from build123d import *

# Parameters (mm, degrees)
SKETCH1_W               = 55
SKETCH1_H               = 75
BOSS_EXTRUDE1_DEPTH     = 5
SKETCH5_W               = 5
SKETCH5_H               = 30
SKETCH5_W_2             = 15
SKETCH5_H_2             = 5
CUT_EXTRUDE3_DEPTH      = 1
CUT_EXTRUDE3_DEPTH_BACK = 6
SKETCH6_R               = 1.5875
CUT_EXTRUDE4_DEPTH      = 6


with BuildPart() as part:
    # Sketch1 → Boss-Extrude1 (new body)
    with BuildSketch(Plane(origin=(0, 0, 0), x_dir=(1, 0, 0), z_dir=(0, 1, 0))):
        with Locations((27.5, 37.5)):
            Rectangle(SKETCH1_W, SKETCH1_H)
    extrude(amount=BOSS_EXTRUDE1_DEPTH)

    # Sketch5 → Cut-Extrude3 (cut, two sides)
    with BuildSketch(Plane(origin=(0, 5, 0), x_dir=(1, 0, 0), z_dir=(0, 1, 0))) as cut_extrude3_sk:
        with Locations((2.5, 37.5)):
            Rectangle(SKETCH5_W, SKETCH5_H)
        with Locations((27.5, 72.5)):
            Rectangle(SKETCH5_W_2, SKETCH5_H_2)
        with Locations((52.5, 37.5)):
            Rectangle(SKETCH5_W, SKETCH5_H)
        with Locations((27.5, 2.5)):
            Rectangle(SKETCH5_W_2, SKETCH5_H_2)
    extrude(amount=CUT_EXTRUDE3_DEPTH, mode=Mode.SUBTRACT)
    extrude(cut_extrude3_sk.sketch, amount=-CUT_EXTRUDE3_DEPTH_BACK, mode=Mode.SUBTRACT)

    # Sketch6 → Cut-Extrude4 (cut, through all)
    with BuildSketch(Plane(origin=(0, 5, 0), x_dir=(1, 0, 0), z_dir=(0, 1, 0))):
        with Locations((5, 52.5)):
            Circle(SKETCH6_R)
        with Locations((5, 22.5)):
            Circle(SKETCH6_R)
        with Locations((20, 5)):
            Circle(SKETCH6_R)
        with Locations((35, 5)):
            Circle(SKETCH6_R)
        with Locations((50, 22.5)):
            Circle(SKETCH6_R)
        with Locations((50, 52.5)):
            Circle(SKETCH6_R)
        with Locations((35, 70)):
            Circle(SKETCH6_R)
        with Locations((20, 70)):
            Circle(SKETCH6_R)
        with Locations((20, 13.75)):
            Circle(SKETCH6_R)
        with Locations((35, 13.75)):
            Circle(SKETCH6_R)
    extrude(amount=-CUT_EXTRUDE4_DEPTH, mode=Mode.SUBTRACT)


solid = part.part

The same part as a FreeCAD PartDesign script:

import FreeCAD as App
import Part
import Sketcher
from FreeCAD import Vector

doc = App.newDocument("Part")
body = doc.addObject("PartDesign::Body", "Body")

# Sketch on XZ plane
sketch1 = doc.addObject("Sketcher::SketchObject", "Sketch")
body.addObject(sketch1)
sketch1.AttachmentSupport = (doc.XZ_Plane, [""])
sketch1.MapMode = "FlatFace"
sketch1.addGeometry([
    Part.LineSegment(Vector(0, -75, 0), Vector(0, 0, 0)),
    Part.LineSegment(Vector(0, 0, 0), Vector(55, 0, 0)),
    Part.LineSegment(Vector(55, 0, 0), Vector(55, -75, 0)),
    Part.LineSegment(Vector(55, -75, 0), Vector(0, -75, 0)),
], False)
sketch1.addConstraint([
    Sketcher.Constraint("Coincident", 0, 2, 1, 1),
    Sketcher.Constraint("Coincident", 1, 2, 2, 1),
    Sketcher.Constraint("Coincident", 2, 2, 3, 1),
    Sketcher.Constraint("Coincident", 3, 2, 0, 1),
    Sketcher.Constraint("Vertical", 0),
    Sketcher.Constraint("Horizontal", 1),
    Sketcher.Constraint("Vertical", 2),
    Sketcher.Constraint("Horizontal", 3),
    Sketcher.Constraint("Coincident", 0, 2, -1, 1),
    Sketcher.Constraint("DistanceX", 1, 1, 1, 2, 55.0),
    Sketcher.Constraint("DistanceY", 0, 1, 0, 2, 75.0),
])
pad1 = doc.addObject("PartDesign::Pad", "Pad")
body.addObject(pad1)
pad1.Profile = sketch1
pad1.Length = 5
pad1.Reversed = True

# Sketch on XZ plane
sketch2 = doc.addObject("Sketcher::SketchObject", "Sketch001")
body.addObject(sketch2)
sketch2.AttachmentSupport = (doc.XZ_Plane, [""])
sketch2.MapMode = "FlatFace"
sketch2.AttachmentOffset = App.Placement(Vector(0, 0, -5), App.Rotation())
sketch2.addGeometry([
    Part.LineSegment(Vector(0, -52.5, 0), Vector(0, -22.5, 0)),  # 0
    Part.LineSegment(Vector(0, -22.5, 0), Vector(5, -22.5, 0)),  # 1
    Part.LineSegment(Vector(5, -22.5, 0), Vector(5, -52.5, 0)),  # 2
    Part.LineSegment(Vector(5, -52.5, 0), Vector(0, -52.5, 0)),  # 3
    Part.LineSegment(Vector(20, -75, 0), Vector(20, -70, 0)),  # 4
    Part.LineSegment(Vector(20, -70, 0), Vector(35, -70, 0)),  # 5
    Part.LineSegment(Vector(35, -70, 0), Vector(35, -75, 0)),  # 6
    Part.LineSegment(Vector(35, -75, 0), Vector(20, -75, 0)),  # 7
    Part.LineSegment(Vector(50, -52.5, 0), Vector(50, -22.5, 0)),  # 8
    Part.LineSegment(Vector(50, -22.5, 0), Vector(55, -22.5, 0)),  # 9
    Part.LineSegment(Vector(55, -22.5, 0), Vector(55, -52.5, 0)),  # 10
    Part.LineSegment(Vector(55, -52.5, 0), Vector(50, -52.5, 0)),  # 11
    Part.LineSegment(Vector(20, -5, 0), Vector(20, 0, 0)),  # 12
    Part.LineSegment(Vector(20, 0, 0), Vector(35, 0, 0)),  # 13
    Part.LineSegment(Vector(35, 0, 0), Vector(35, -5, 0)),  # 14
    Part.LineSegment(Vector(35, -5, 0), Vector(20, -5, 0)),  # 15
], False)
sketch2.addConstraint([
    Sketcher.Constraint("Coincident", 0, 2, 1, 1),
    Sketcher.Constraint("Coincident", 1, 2, 2, 1),
    Sketcher.Constraint("Coincident", 2, 2, 3, 1),
    Sketcher.Constraint("Coincident", 3, 2, 0, 1),
    Sketcher.Constraint("Coincident", 4, 2, 5, 1),
    Sketcher.Constraint("Coincident", 5, 2, 6, 1),
    Sketcher.Constraint("Coincident", 6, 2, 7, 1),
    Sketcher.Constraint("Coincident", 7, 2, 4, 1),
    Sketcher.Constraint("Coincident", 8, 2, 9, 1),
    Sketcher.Constraint("Coincident", 9, 2, 10, 1),
    Sketcher.Constraint("Coincident", 10, 2, 11, 1),
    Sketcher.Constraint("Coincident", 11, 2, 8, 1),
    Sketcher.Constraint("Coincident", 12, 2, 13, 1),
    Sketcher.Constraint("Coincident", 13, 2, 14, 1),
    Sketcher.Constraint("Coincident", 14, 2, 15, 1),
    Sketcher.Constraint("Coincident", 15, 2, 12, 1),
    Sketcher.Constraint("Vertical", 0),
    Sketcher.Constraint("Horizontal", 1),
    Sketcher.Constraint("Vertical", 2),
    Sketcher.Constraint("Horizontal", 3),
    Sketcher.Constraint("Vertical", 4),
    Sketcher.Constraint("Horizontal", 5),
    Sketcher.Constraint("Vertical", 6),
    Sketcher.Constraint("Horizontal", 7),
    Sketcher.Constraint("Vertical", 8),
    Sketcher.Constraint("Horizontal", 9),
    Sketcher.Constraint("Vertical", 10),
    Sketcher.Constraint("Horizontal", 11),
    Sketcher.Constraint("Vertical", 12),
    Sketcher.Constraint("Horizontal", 13),
    Sketcher.Constraint("Vertical", 14),
    Sketcher.Constraint("Horizontal", 15),
    Sketcher.Constraint("PointOnObject", 0, 2, -2),
    Sketcher.Constraint("PointOnObject", 12, 2, -1),
    Sketcher.Constraint("Horizontal", 1, 2, 8, 2),
    Sketcher.Constraint("Horizontal", 3, 2, 10, 2),
    Sketcher.Constraint("Vertical", 7, 2, 12, 2),
    Sketcher.Constraint("Vertical", 6, 2, 13, 2),
    Sketcher.Constraint("Equal", 3, 9),
    Sketcher.Constraint("Equal", 11, 4),
    Sketcher.Constraint("Equal", 6, 12),
    Sketcher.Constraint("DistanceX", 1, 1, 1, 2, 5.0),
    Sketcher.Constraint("DistanceX", 5, 1, 5, 2, 15.0),
    Sketcher.Constraint("DistanceY", 0, 1, 0, 2, 30.0),
    Sketcher.Constraint("DistanceX", -1, 1, 4, 2, 20.0),
    Sketcher.Constraint("DistanceY", 4, 2, -1, 1, 70.0),
    Sketcher.Constraint("DistanceX", -1, 1, 8, 2, 50.0),
    Sketcher.Constraint("DistanceY", 0, 2, -1, 1, 22.5),
])
pocket1 = doc.addObject("PartDesign::Pocket", "Pocket")
body.addObject(pocket1)
pocket1.Profile = sketch2
pocket1.Type = "ThroughAll"
pocket1.Midplane = True

# Sketch on XZ plane
sketch3 = doc.addObject("Sketcher::SketchObject", "Sketch002")
body.addObject(sketch3)
sketch3.AttachmentSupport = (doc.XZ_Plane, [""])
sketch3.MapMode = "FlatFace"
sketch3.AttachmentOffset = App.Placement(Vector(0, 0, -5), App.Rotation())
sketch3.addGeometry([
    Part.Circle(Vector(5, -52.5, 0), Vector(0, 0, 1), 1.5875),  # 0
    Part.Circle(Vector(5, -22.5, 0), Vector(0, 0, 1), 1.5875),  # 1
    Part.Circle(Vector(20, -5, 0), Vector(0, 0, 1), 1.5875),  # 2
    Part.Circle(Vector(35, -5, 0), Vector(0, 0, 1), 1.5875),  # 3
    Part.Circle(Vector(50, -22.5, 0), Vector(0, 0, 1), 1.5875),  # 4
    Part.Circle(Vector(50, -52.5, 0), Vector(0, 0, 1), 1.5875),  # 5
    Part.Circle(Vector(35, -70, 0), Vector(0, 0, 1), 1.5875),  # 6
    Part.Circle(Vector(20, -70, 0), Vector(0, 0, 1), 1.5875),  # 7
    Part.Circle(Vector(20, -13.75, 0), Vector(0, 0, 1), 1.5875),  # 8
    Part.Circle(Vector(35, -13.75, 0), Vector(0, 0, 1), 1.5875),  # 9
], False)
sketch3.addConstraint([
    Sketcher.Constraint("Equal", 0, 1),
    Sketcher.Constraint("Equal", 1, 2),
    Sketcher.Constraint("Equal", 2, 3),
    Sketcher.Constraint("Equal", 3, 4),
    Sketcher.Constraint("Equal", 4, 5),
    Sketcher.Constraint("Equal", 5, 6),
    Sketcher.Constraint("Equal", 6, 7),
    Sketcher.Constraint("Equal", 7, 8),
    Sketcher.Constraint("Equal", 8, 9),
    Sketcher.Constraint("Horizontal", 2, 3, 3, 3),
    Sketcher.Constraint("Horizontal", 1, 3, 4, 3),
    Sketcher.Constraint("Horizontal", 0, 3, 5, 3),
    Sketcher.Constraint("Horizontal", 6, 3, 7, 3),
    Sketcher.Constraint("Horizontal", 8, 3, 9, 3),
    Sketcher.Constraint("Vertical", 0, 3, 1, 3),
    Sketcher.Constraint("Vertical", 4, 3, 5, 3),
    Sketcher.Constraint("Vertical", 3, 3, 6, 3),
    Sketcher.Constraint("Vertical", 2, 3, 7, 3),
    Sketcher.Constraint("Vertical", 7, 3, 8, 3),
    Sketcher.Constraint("Vertical", 6, 3, 9, 3),
    Sketcher.Constraint("Diameter", 0, 3.175),
    Sketcher.Constraint("DistanceX", -1, 1, 0, 3, 5.0),
    Sketcher.Constraint("DistanceX", -1, 1, 2, 3, 20.0),
    Sketcher.Constraint("DistanceY", 2, 3, -1, 1, 5.0),
    Sketcher.Constraint("DistanceX", -1, 1, 3, 3, 35.0),
    Sketcher.Constraint("DistanceX", -1, 1, 4, 3, 50.0),
    Sketcher.Constraint("DistanceY", 6, 3, -1, 1, 70.0),
    Sketcher.Constraint("DistanceY", 0, 3, 1, 3, 30.0),
    Sketcher.Constraint("DistanceY", 0, 3, -1, 1, 52.5),
    Sketcher.Constraint("DistanceY", 8, 3, -1, 1, 13.75),
])
pocket2 = doc.addObject("PartDesign::Pocket", "Pocket001")
body.addObject(pocket2)
pocket2.Profile = sketch3
pocket2.Type = "ThroughAll"
pocket2.Reversed = True

doc.recompute()
